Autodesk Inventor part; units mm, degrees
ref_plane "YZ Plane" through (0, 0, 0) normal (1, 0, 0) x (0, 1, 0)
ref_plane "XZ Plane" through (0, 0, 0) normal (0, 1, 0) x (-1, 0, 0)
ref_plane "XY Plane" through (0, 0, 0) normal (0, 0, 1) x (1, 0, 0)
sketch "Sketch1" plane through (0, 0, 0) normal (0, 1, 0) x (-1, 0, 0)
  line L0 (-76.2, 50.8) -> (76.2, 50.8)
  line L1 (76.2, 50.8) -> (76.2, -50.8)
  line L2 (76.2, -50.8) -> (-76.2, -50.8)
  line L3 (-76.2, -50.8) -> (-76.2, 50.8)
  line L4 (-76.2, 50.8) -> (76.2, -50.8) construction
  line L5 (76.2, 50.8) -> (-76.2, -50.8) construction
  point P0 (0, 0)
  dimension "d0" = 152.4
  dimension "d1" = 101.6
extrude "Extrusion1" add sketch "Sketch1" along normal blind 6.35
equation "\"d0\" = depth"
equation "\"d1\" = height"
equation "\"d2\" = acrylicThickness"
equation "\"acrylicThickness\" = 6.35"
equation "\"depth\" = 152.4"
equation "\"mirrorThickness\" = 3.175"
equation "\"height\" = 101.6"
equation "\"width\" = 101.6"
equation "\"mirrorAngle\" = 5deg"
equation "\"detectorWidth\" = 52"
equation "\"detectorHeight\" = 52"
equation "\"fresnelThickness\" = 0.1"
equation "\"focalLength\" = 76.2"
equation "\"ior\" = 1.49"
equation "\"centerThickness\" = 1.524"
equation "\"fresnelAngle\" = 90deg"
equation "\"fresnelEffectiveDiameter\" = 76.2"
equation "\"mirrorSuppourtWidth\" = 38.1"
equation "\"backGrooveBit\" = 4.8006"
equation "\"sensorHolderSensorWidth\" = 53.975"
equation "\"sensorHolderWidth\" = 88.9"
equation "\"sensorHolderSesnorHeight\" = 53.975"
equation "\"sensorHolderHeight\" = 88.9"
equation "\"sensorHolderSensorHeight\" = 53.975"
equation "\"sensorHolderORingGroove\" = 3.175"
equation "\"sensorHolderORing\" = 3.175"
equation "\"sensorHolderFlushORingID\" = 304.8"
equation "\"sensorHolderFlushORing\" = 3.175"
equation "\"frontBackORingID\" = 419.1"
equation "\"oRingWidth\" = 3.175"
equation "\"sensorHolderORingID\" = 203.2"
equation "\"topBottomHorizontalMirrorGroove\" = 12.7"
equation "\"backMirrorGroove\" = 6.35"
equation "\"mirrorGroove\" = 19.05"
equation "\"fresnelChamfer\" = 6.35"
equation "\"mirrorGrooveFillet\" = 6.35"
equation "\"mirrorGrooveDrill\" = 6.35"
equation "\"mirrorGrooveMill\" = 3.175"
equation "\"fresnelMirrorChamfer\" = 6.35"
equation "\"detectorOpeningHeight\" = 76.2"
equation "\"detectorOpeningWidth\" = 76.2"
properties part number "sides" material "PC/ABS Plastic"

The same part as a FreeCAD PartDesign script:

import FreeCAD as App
import Part
import Sketcher
from FreeCAD import Vector
Q = App.Units.Quantity

doc = App.newDocument("Part")
body = doc.addObject("PartDesign::Body", "Body")

# Sketch on XZ plane
sketch1 = body.newObject("Sketcher::SketchObject", "Sketch")
sketch1.AttachmentSupport = (doc.getObject("XZ_Plane"), [""])
sketch1.MapMode = "FlatFace"
sketch1.addGeometry(Part.LineSegment(Vector(-76, 51, 0), Vector(76, 51, 0)), False)
sketch1.addGeometry(Part.LineSegment(Vector(76, 51, 0), Vector(76, -51, 0)), False)
sketch1.addGeometry(Part.LineSegment(Vector(76, -51, 0), Vector(-76, -51, 0)), False)
sketch1.addGeometry(Part.LineSegment(Vector(-76, -51, 0), Vector(-76, 51, 0)), False)
sketch1.addConstraint(Sketcher.Constraint("Coincident", 0, 2, 1, 1))
sketch1.addConstraint(Sketcher.Constraint("Coincident", 1, 2, 2, 1))
sketch1.addConstraint(Sketcher.Constraint("Coincident", 2, 2, 3, 1))
sketch1.addConstraint(Sketcher.Constraint("Coincident", 3, 2, 0, 1))
sketch1.addConstraint(Sketcher.Constraint("Horizontal", 0))
sketch1.addConstraint(Sketcher.Constraint("Vertical", 1))
sketch1.addConstraint(Sketcher.Constraint("Horizontal", 2))
sketch1.addConstraint(Sketcher.Constraint("Vertical", 3))
sketch1.addConstraint(Sketcher.Constraint("Symmetric", 0, 2, 2, 2, -1, 1))
sketch1.addConstraint(Sketcher.Constraint("DistanceX", 0, 1, 0, 2, Q("6 in")))
sketch1.addConstraint(Sketcher.Constraint("DistanceY", 1, 2, 1, 1, Q("4 in")))
pad1 = body.newObject("PartDesign::Pad", "Pad")
pad1.Profile = sketch1
pad1.Length = Q("0.25 in")
pad1.Reversed = True

doc.recompute()
